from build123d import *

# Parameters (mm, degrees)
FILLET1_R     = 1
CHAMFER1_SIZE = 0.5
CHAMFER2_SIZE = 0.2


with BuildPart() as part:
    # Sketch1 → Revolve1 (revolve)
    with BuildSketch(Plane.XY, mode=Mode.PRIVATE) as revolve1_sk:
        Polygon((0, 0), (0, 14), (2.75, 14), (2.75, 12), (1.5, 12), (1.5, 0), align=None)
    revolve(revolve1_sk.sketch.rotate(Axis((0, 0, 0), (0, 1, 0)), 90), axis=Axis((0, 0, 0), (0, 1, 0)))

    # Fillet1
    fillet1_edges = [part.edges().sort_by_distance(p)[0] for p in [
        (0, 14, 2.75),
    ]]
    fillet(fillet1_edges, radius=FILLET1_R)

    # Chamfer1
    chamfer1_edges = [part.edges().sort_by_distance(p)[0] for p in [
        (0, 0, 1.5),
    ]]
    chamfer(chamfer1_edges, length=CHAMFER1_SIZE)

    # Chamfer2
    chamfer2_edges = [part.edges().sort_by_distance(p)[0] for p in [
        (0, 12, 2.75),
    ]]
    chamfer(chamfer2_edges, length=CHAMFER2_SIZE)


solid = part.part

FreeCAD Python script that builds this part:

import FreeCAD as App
import Part
import Sketcher

V = App.Vector


def edges_at(feature, points):
    """Names of the edges that pass closest to the given points."""
    edges = feature.Shape.Edges
    near = lambda p: min(range(len(edges)), key=lambda i: edges[i].distToShape(Part.Vertex(*p))[0])
    return sorted({f"Edge{near(p) + 1}" for p in points})


def add_polygon(sketch, points):
    """Adds a closed chain of lines whose ends are joined by coincident constraints."""
    first, n = sketch.GeometryCount, len(points)
    for a, b in zip(points, points[1:] + points[:1]):
        sketch.addGeometry(Part.LineSegment(App.Vector(*a, 0), App.Vector(*b, 0)), False)
    for i in range(n):
        sketch.addConstraint(Sketcher.Constraint("Coincident", first + i, 2, first + (i + 1) % n, 1))

doc = App.newDocument("Part")
body = doc.addObject("PartDesign::Body", "Body")

# Sketch on XY plane
sketch1 = doc.addObject("Sketcher::SketchObject", "Sketch")
body.addObject(sketch1)
sketch1.AttachmentSupport = (doc.XY_Plane, [""])
sketch1.MapMode = "FlatFace"
add_polygon(sketch1, [(0, 14), (0, 0), (1.5, 0), (1.5, 12), (2.8, 12), (2.8, 14)])  # lines 0-5
sketch1.addConstraint([
    Sketcher.Constraint("Vertical", 0),
    Sketcher.Constraint("Horizontal", 1),
    Sketcher.Constraint("Vertical", 2),
    Sketcher.Constraint("Horizontal", 3),
    Sketcher.Constraint("Vertical", 4),
    Sketcher.Constraint("Horizontal", 5),
    Sketcher.Constraint("Coincident", 0, 2, -1, 1),
    Sketcher.Constraint("DistanceY", 0, 2, 0, 1, 14.0),
    Sketcher.Constraint("DistanceY", 2, 1, 2, 2, 12.0),
    Sketcher.Constraint("DistanceX", 1, 1, 1, 2, 1.5),
    Sketcher.Constraint("DistanceX", 3, 1, 3, 2, 1.25),
])
revolution = doc.addObject("PartDesign::Revolution", "Revolution")
body.addObject(revolution)
revolution.Profile = sketch1
revolution.ReferenceAxis = (sketch1, ["V_Axis"])
revolution.Angle = 360
doc.recompute()

fillet = doc.addObject("PartDesign::Fillet", "Fillet")
body.addObject(fillet)
fillet.Base = (revolution, edges_at(revolution, [(0, 14, 2.75)]))
fillet.Radius = 1
doc.recompute()

chamfer = doc.addObject("PartDesign::Chamfer", "Chamfer")
body.addObject(chamfer)
chamfer.Base = (fillet, edges_at(fillet, [(0, 0, 1.5)]))
chamfer.Size = 0.5
doc.recompute()

chamfer2 = doc.addObject("PartDesign::Chamfer", "Chamfer001")
body.addObject(chamfer2)
chamfer2.Base = (chamfer, edges_at(chamfer, [(0, 12, 2.75)]))
chamfer2.Size = 0.2

doc.recompute()
